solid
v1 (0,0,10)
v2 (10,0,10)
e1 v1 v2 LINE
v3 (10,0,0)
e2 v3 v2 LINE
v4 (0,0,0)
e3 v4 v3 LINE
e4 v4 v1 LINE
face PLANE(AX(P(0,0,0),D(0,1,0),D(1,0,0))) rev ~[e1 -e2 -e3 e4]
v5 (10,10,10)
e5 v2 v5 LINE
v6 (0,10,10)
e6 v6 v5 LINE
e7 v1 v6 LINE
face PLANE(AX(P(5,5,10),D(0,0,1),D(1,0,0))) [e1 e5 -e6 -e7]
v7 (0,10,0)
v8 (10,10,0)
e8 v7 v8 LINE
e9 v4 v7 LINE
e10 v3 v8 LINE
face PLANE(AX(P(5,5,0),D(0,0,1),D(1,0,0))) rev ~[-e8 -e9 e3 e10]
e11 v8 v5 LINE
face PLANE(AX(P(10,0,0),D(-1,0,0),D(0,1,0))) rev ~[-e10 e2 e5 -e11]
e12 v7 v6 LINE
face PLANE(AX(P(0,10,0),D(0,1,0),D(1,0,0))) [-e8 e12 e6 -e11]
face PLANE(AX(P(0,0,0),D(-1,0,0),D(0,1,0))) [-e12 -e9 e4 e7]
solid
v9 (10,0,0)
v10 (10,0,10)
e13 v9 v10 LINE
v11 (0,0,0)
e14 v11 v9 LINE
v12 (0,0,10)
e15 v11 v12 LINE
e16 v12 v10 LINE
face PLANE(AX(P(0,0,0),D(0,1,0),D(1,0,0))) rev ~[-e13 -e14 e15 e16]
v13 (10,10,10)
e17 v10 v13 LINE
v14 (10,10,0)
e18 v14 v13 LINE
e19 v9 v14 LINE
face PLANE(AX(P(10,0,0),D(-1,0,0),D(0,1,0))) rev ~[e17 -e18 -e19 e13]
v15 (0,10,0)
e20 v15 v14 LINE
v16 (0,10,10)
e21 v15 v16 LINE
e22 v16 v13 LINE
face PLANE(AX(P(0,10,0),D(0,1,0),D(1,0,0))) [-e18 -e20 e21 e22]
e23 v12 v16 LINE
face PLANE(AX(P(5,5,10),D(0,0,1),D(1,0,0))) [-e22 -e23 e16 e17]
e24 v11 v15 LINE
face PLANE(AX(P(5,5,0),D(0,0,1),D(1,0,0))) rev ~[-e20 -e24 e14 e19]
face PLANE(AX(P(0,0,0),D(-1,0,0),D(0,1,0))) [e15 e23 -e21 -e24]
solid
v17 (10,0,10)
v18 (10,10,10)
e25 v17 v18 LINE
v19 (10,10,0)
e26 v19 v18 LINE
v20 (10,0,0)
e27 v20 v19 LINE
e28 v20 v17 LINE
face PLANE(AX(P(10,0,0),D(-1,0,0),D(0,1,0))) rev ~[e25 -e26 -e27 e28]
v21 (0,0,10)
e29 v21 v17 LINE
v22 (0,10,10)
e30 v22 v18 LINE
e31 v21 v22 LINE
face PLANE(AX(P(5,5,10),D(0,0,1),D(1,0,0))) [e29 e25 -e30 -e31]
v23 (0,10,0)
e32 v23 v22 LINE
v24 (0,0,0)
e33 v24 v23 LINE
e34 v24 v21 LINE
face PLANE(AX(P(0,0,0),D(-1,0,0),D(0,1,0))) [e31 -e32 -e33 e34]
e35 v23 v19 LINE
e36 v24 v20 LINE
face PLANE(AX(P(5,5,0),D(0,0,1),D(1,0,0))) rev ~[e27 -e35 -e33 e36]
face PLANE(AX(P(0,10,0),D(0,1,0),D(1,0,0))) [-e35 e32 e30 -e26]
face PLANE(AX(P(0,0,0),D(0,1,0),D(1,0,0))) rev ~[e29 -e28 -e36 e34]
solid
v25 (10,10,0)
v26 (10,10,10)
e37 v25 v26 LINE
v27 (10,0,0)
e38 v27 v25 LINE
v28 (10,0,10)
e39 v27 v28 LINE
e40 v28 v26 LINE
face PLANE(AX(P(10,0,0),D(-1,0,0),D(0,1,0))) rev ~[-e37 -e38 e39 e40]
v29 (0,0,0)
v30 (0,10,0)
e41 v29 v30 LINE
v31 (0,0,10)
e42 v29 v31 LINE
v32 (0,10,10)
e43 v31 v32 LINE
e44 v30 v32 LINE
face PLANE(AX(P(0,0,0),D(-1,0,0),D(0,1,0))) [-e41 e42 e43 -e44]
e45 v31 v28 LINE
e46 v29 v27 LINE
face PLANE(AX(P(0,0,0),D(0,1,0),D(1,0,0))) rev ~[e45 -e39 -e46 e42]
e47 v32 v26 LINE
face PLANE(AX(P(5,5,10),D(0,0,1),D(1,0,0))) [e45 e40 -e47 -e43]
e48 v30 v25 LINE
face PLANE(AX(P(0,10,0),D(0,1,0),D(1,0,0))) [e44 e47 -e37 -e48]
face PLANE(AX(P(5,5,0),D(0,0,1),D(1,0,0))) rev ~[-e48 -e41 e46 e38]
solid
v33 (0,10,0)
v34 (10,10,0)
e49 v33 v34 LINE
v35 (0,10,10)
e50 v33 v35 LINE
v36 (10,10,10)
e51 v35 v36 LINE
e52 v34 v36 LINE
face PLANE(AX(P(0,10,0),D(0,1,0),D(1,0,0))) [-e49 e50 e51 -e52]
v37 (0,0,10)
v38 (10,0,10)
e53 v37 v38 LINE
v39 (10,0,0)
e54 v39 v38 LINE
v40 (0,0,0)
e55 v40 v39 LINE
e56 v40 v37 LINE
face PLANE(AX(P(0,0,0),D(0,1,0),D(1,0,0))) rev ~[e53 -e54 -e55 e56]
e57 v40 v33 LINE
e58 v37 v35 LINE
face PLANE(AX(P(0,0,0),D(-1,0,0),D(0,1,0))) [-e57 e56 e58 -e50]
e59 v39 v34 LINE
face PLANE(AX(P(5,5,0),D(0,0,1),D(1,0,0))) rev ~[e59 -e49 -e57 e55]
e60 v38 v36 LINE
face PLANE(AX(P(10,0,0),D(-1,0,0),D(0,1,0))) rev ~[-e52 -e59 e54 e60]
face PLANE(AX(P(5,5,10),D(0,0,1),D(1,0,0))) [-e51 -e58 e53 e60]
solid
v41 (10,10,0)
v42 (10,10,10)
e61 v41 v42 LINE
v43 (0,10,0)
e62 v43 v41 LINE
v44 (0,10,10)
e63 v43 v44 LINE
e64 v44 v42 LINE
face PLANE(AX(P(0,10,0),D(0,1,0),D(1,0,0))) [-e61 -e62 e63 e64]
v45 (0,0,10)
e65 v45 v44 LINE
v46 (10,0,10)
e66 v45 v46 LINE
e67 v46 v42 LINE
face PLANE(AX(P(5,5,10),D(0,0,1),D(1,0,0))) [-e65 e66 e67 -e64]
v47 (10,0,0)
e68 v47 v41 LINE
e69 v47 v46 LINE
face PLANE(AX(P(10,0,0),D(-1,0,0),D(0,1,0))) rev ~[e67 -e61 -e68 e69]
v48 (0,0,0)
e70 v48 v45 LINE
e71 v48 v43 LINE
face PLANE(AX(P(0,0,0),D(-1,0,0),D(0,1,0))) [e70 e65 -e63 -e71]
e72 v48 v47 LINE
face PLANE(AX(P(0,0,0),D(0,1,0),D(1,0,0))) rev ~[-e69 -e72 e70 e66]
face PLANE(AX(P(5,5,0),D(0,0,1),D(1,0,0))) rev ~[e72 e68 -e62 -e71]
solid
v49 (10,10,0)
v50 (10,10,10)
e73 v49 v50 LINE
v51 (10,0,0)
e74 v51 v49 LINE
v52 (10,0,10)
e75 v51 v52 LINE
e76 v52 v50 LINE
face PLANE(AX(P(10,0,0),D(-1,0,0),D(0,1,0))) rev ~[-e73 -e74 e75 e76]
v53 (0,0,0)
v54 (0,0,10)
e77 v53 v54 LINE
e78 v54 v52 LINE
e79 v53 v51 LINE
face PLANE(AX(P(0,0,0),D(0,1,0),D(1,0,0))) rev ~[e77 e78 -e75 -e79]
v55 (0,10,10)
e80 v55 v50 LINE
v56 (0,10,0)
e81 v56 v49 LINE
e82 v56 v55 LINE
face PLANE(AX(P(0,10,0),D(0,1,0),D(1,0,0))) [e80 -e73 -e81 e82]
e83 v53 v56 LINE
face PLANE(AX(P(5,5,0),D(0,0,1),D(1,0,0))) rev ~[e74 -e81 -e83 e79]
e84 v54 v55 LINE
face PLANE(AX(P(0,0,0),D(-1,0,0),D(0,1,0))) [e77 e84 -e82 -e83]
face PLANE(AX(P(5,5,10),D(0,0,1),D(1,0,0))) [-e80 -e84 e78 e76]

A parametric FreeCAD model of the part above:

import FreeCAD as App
import Part
import Sketcher
from FreeCAD import Vector
Q = App.Units.Quantity

doc = App.newDocument("Part")
params = doc.addObject("Spreadsheet::Sheet", "Params")
for row, (alias, value) in enumerate([
    ("sketch1_width", "10 mm"),
    ("pad1_length", "10 mm"),
    ("sketch2_width", "10 mm"),
    ("pad2_length", "10 mm"),
    ("sketch3_width", "10 mm"),
    ("pad3_length", "10 mm"),
    ("sketch4_width", "10 mm"),
    ("pad4_length", "10 mm"),
    ("sketch5_width", "10 mm"),
    ("pad5_length", "10 mm"),
    ("sketch6_width", "10 mm"),
    ("pad6_length", "10 mm"),
    ("sketch7_width", "10 mm"),
    ("pad7_length", "10 mm"),
], start=1):
    params.set(f"A{row}", alias)
    params.set(f"B{row}", "=" + value)
    params.setAlias(f"B{row}", alias)

body = doc.addObject("PartDesign::Body", "Body")

# Sketch on XY plane
sketch1 = doc.addObject("Sketcher::SketchObject", "Sketch")
body.addObject(sketch1)
sketch1.AttachmentSupport = (doc.XY_Plane, [""])
sketch1.MapMode = "FlatFace"
sketch1.addGeometry(Part.LineSegment(Vector(0, 10, 0), Vector(0, 0, 0)), False)
sketch1.addGeometry(Part.LineSegment(Vector(0, 0, 0), Vector(10, 0, 0)), False)
sketch1.addGeometry(Part.LineSegment(Vector(10, 0, 0), Vector(10, 10, 0)), False)
sketch1.addGeometry(Part.LineSegment(Vector(10, 10, 0), Vector(0, 10, 0)), False)
sketch1.addConstraint(Sketcher.Constraint("Coincident", 0, 2, 1, 1))
sketch1.addConstraint(Sketcher.Constraint("Coincident", 1, 2, 2, 1))
sketch1.addConstraint(Sketcher.Constraint("Coincident", 2, 2, 3, 1))
sketch1.addConstraint(Sketcher.Constraint("Coincident", 3, 2, 0, 1))
sketch1.addConstraint(Sketcher.Constraint("Vertical", 0))
sketch1.addConstraint(Sketcher.Constraint("Horizontal", 1))
sketch1.addConstraint(Sketcher.Constraint("Vertical", 2))
sketch1.addConstraint(Sketcher.Constraint("Horizontal", 3))
sketch1.addConstraint(Sketcher.Constraint("Coincident", 0, 2, -1, 1))
sketch1.addConstraint(Sketcher.Constraint("Equal", 3, 0))
sketch1.addConstraint(Sketcher.Constraint("DistanceX", 1, 1, 1, 2, Q("10 mm")))
sketch1.setExpression("Constraints[10]", "Params.sketch1_width")
pad1 = doc.addObject("PartDesign::Pad", "Pad")
body.addObject(pad1)
pad1.Profile = sketch1
pad1.setExpression("Length", "Params.pad1_length")
body2 = doc.addObject("PartDesign::Body", "Body001")

# Sketch on XY plane
sketch2 = doc.addObject("Sketcher::SketchObject", "Sketch001")
body2.addObject(sketch2)
sketch2.AttachmentSupport = (doc.getObject("XY_Plane001"), [""])
sketch2.MapMode = "FlatFace"
sketch2.addGeometry(Part.LineSegment(Vector(0, 10, 0), Vector(0, 0, 0)), False)
sketch2.addGeometry(Part.LineSegment(Vector(0, 0, 0), Vector(10, 0, 0)), False)
sketch2.addGeometry(Part.LineSegment(Vector(10, 0, 0), Vector(10, 10, 0)), False)
sketch2.addGeometry(Part.LineSegment(Vector(10, 10, 0), Vector(0, 10, 0)), False)
sketch2.addConstraint(Sketcher.Constraint("Coincident", 0, 2, 1, 1))
sketch2.addConstraint(Sketcher.Constraint("Coincident", 1, 2, 2, 1))
sketch2.addConstraint(Sketcher.Constraint("Coincident", 2, 2, 3, 1))
sketch2.addConstraint(Sketcher.Constraint("Coincident", 3, 2, 0, 1))
sketch2.addConstraint(Sketcher.Constraint("Vertical", 0))
sketch2.addConstraint(Sketcher.Constraint("Horizontal", 1))
sketch2.addConstraint(Sketcher.Constraint("Vertical", 2))
sketch2.addConstraint(Sketcher.Constraint("Horizontal", 3))
sketch2.addConstraint(Sketcher.Constraint("Coincident", 0, 2, -1, 1))
sketch2.addConstraint(Sketcher.Constraint("Equal", 3, 0))
sketch2.addConstraint(Sketcher.Constraint("DistanceX", 1, 1, 1, 2, Q("10 mm")))
sketch2.setExpression("Constraints[10]", "Params.sketch2_width")
pad2 = doc.addObject("PartDesign::Pad", "Pad001")
body2.addObject(pad2)
pad2.Profile = sketch2
pad2.setExpression("Length", "Params.pad2_length")
body3 = doc.addObject("PartDesign::Body", "Body002")

# Sketch on XY plane
sketch3 = doc.addObject("Sketcher::SketchObject", "Sketch002")
body3.addObject(sketch3)
sketch3.AttachmentSupport = (doc.getObject("XY_Plane002"), [""])
sketch3.MapMode = "FlatFace"
sketch3.addGeometry(Part.LineSegment(Vector(0, 10, 0), Vector(0, 0, 0)), False)
sketch3.addGeometry(Part.LineSegment(Vector(0, 0, 0), Vector(10, 0, 0)), False)
sketch3.addGeometry(Part.LineSegment(Vector(10, 0, 0), Vector(10, 10, 0)), False)
sketch3.addGeometry(Part.LineSegment(Vector(10, 10, 0), Vector(0, 10, 0)), False)
sketch3.addConstraint(Sketcher.Constraint("Coincident", 0, 2, 1, 1))
sketch3.addConstraint(Sketcher.Constraint("Coincident", 1, 2, 2, 1))
sketch3.addConstraint(Sketcher.Constraint("Coincident", 2, 2, 3, 1))
sketch3.addConstraint(Sketcher.Constraint("Coincident", 3, 2, 0, 1))
sketch3.addConstraint(Sketcher.Constraint("Vertical", 0))
sketch3.addConstraint(Sketcher.Constraint("Horizontal", 1))
sketch3.addConstraint(Sketcher.Constraint("Vertical", 2))
sketch3.addConstraint(Sketcher.Constraint("Horizontal", 3))
sketch3.addConstraint(Sketcher.Constraint("Coincident", 0, 2, -1, 1))
sketch3.addConstraint(Sketcher.Constraint("Equal", 3, 0))
sketch3.addConstraint(Sketcher.Constraint("DistanceX", 1, 1, 1, 2, Q("10 mm")))
sketch3.setExpression("Constraints[10]", "Params.sketch3_width")
pad3 = doc.addObject("PartDesign::Pad", "Pad002")
body3.addObject(pad3)
pad3.Profile = sketch3
pad3.setExpression("Length", "Params.pad3_length")
body4 = doc.addObject("PartDesign::Body", "Body003")

# Sketch on XY plane
sketch4 = doc.addObject("Sketcher::SketchObject", "Sketch003")
body4.addObject(sketch4)
sketch4.AttachmentSupport = (doc.getObject("XY_Plane003"), [""])
sketch4.MapMode = "FlatFace"
sketch4.addGeometry(Part.LineSegment(Vector(0, 10, 0), Vector(0, 0, 0)), False)
sketch4.addGeometry(Part.LineSegment(Vector(0, 0, 0), Vector(10, 0, 0)), False)
sketch4.addGeometry(Part.LineSegment(Vector(10, 0, 0), Vector(10, 10, 0)), False)
sketch4.addGeometry(Part.LineSegment(Vector(10, 10, 0), Vector(0, 10, 0)), False)
sketch4.addConstraint(Sketcher.Constraint("Coincident", 0, 2, 1, 1))
sketch4.addConstraint(Sketcher.Constraint("Coincident", 1, 2, 2, 1))
sketch4.addConstraint(Sketcher.Constraint("Coincident", 2, 2, 3, 1))
sketch4.addConstraint(Sketcher.Constraint("Coincident", 3, 2, 0, 1))
sketch4.addConstraint(Sketcher.Constraint("Vertical", 0))
sketch4.addConstraint(Sketcher.Constraint("Horizontal", 1))
sketch4.addConstraint(Sketcher.Constraint("Vertical", 2))
sketch4.addConstraint(Sketcher.Constraint("Horizontal", 3))
sketch4.addConstraint(Sketcher.Constraint("Coincident", 0, 2, -1, 1))
sketch4.addConstraint(Sketcher.Constraint("Equal", 3, 0))
sketch4.addConstraint(Sketcher.Constraint("DistanceX", 1, 1, 1, 2, Q("10 mm")))
sketch4.setExpression("Constraints[10]", "Params.sketch4_width")
pad4 = doc.addObject("PartDesign::Pad", "Pad003")
body4.addObject(pad4)
pad4.Profile = sketch4
pad4.setExpression("Length", "Params.pad4_length")
body5 = doc.addObject("PartDesign::Body", "Body004")

# Sketch on XY plane
sketch5 = doc.addObject("Sketcher::SketchObject", "Sketch004")
body5.addObject(sketch5)
sketch5.AttachmentSupport = (doc.getObject("XY_Plane004"), [""])
sketch5.MapMode = "FlatFace"
sketch5.addGeometry(Part.LineSegment(Vector(0, 10, 0), Vector(0, 0, 0)), False)
sketch5.addGeometry(Part.LineSegment(Vector(0, 0, 0), Vector(10, 0, 0)), False)
sketch5.addGeometry(Part.LineSegment(Vector(10, 0, 0), Vector(10, 10, 0)), False)
sketch5.addGeometry(Part.LineSegment(Vector(10, 10, 0), Vector(0, 10, 0)), False)
sketch5.addConstraint(Sketcher.Constraint("Coincident", 0, 2, 1, 1))
sketch5.addConstraint(Sketcher.Constraint("Coincident", 1, 2, 2, 1))
sketch5.addConstraint(Sketcher.Constraint("Coincident", 2, 2, 3, 1))
sketch5.addConstraint(Sketcher.Constraint("Coincident", 3, 2, 0, 1))
sketch5.addConstraint(Sketcher.Constraint("Vertical", 0))
sketch5.addConstraint(Sketcher.Constraint("Horizontal", 1))
sketch5.addConstraint(Sketcher.Constraint("Vertical", 2))
sketch5.addConstraint(Sketcher.Constraint("Horizontal", 3))
sketch5.addConstraint(Sketcher.Constraint("Coincident", 0, 2, -1, 1))
sketch5.addConstraint(Sketcher.Constraint("Equal", 3, 0))
sketch5.addConstraint(Sketcher.Constraint("DistanceX", 1, 1, 1, 2, Q("10 mm")))
sketch5.setExpression("Constraints[10]", "Params.sketch5_width")
pad5 = doc.addObject("PartDesign::Pad", "Pad004")
body5.addObject(pad5)
pad5.Profile = sketch5
pad5.setExpression("Length", "Params.pad5_length")
body6 = doc.addObject("PartDesign::Body", "Body005")

# Sketch on XY plane
sketch6 = doc.addObject("Sketcher::SketchObject", "Sketch005")
body6.addObject(sketch6)
sketch6.AttachmentSupport = (doc.getObject("XY_Plane005"), [""])
sketch6.MapMode = "FlatFace"
sketch6.addGeometry(Part.LineSegment(Vector(0, 10, 0), Vector(0, 0, 0)), False)
sketch6.addGeometry(Part.LineSegment(Vector(0, 0, 0), Vector(10, 0, 0)), False)
sketch6.addGeometry(Part.LineSegment(Vector(10, 0, 0), Vector(10, 10, 0)), False)
sketch6.addGeometry(Part.LineSegment(Vector(10, 10, 0), Vector(0, 10, 0)), False)
sketch6.addConstraint(Sketcher.Constraint("Coincident", 0, 2, 1, 1))
sketch6.addConstraint(Sketcher.Constraint("Coincident", 1, 2, 2, 1))
sketch6.addConstraint(Sketcher.Constraint("Coincident", 2, 2, 3, 1))
sketch6.addConstraint(Sketcher.Constraint("Coincident", 3, 2, 0, 1))
sketch6.addConstraint(Sketcher.Constraint("Vertical", 0))
sketch6.addConstraint(Sketcher.Constraint("Horizontal", 1))
sketch6.addConstraint(Sketcher.Constraint("Vertical", 2))
sketch6.addConstraint(Sketcher.Constraint("Horizontal", 3))
sketch6.addConstraint(Sketcher.Constraint("Coincident", 0, 2, -1, 1))
sketch6.addConstraint(Sketcher.Constraint("Equal", 3, 0))
sketch6.addConstraint(Sketcher.Constraint("DistanceX", 1, 1, 1, 2, Q("10 mm")))
sketch6.setExpression("Constraints[10]", "Params.sketch6_width")
pad6 = doc.addObject("PartDesign::Pad", "Pad005")
body6.addObject(pad6)
pad6.Profile = sketch6
pad6.setExpression("Length", "Params.pad6_length")
body7 = doc.addObject("PartDesign::Body", "Body006")

# Sketch on XY plane
sketch7 = doc.addObject("Sketcher::SketchObject", "Sketch006")
body7.addObject(sketch7)
sketch7.AttachmentSupport = (doc.getObject("XY_Plane006"), [""])
sketch7.MapMode = "FlatFace"
sketch7.addGeometry(Part.LineSegment(Vector(0, 10, 0), Vector(0, 0, 0)), False)
sketch7.addGeometry(Part.LineSegment(Vector(0, 0, 0), Vector(10, 0, 0)), False)
sketch7.addGeometry(Part.LineSegment(Vector(10, 0, 0), Vector(10, 10, 0)), False)
sketch7.addGeometry(Part.LineSegment(Vector(10, 10, 0), Vector(0, 10, 0)), False)
sketch7.addConstraint(Sketcher.Constraint("Coincident", 0, 2, 1, 1))
sketch7.addConstraint(Sketcher.Constraint("Coincident", 1, 2, 2, 1))
sketch7.addConstraint(Sketcher.Constraint("Coincident", 2, 2, 3, 1))
sketch7.addConstraint(Sketcher.Constraint("Coincident", 3, 2, 0, 1))
sketch7.addConstraint(Sketcher.Constraint("Vertical", 0))
sketch7.addConstraint(Sketcher.Constraint("Horizontal", 1))
sketch7.addConstraint(Sketcher.Constraint("Vertical", 2))
sketch7.addConstraint(Sketcher.Constraint("Horizontal", 3))
sketch7.addConstraint(Sketcher.Constraint("Coincident", 0, 2, -1, 1))
sketch7.addConstraint(Sketcher.Constraint("Equal", 3, 0))
sketch7.addConstraint(Sketcher.Constraint("DistanceX", 1, 1, 1, 2, Q("10 mm")))
sketch7.setExpression("Constraints[10]", "Params.sketch7_width")
pad7 = doc.addObject("PartDesign::Pad", "Pad006")
body7.addObject(pad7)
pad7.Profile = sketch7
pad7.setExpression("Length", "Params.pad7_length")

doc.recompute()
